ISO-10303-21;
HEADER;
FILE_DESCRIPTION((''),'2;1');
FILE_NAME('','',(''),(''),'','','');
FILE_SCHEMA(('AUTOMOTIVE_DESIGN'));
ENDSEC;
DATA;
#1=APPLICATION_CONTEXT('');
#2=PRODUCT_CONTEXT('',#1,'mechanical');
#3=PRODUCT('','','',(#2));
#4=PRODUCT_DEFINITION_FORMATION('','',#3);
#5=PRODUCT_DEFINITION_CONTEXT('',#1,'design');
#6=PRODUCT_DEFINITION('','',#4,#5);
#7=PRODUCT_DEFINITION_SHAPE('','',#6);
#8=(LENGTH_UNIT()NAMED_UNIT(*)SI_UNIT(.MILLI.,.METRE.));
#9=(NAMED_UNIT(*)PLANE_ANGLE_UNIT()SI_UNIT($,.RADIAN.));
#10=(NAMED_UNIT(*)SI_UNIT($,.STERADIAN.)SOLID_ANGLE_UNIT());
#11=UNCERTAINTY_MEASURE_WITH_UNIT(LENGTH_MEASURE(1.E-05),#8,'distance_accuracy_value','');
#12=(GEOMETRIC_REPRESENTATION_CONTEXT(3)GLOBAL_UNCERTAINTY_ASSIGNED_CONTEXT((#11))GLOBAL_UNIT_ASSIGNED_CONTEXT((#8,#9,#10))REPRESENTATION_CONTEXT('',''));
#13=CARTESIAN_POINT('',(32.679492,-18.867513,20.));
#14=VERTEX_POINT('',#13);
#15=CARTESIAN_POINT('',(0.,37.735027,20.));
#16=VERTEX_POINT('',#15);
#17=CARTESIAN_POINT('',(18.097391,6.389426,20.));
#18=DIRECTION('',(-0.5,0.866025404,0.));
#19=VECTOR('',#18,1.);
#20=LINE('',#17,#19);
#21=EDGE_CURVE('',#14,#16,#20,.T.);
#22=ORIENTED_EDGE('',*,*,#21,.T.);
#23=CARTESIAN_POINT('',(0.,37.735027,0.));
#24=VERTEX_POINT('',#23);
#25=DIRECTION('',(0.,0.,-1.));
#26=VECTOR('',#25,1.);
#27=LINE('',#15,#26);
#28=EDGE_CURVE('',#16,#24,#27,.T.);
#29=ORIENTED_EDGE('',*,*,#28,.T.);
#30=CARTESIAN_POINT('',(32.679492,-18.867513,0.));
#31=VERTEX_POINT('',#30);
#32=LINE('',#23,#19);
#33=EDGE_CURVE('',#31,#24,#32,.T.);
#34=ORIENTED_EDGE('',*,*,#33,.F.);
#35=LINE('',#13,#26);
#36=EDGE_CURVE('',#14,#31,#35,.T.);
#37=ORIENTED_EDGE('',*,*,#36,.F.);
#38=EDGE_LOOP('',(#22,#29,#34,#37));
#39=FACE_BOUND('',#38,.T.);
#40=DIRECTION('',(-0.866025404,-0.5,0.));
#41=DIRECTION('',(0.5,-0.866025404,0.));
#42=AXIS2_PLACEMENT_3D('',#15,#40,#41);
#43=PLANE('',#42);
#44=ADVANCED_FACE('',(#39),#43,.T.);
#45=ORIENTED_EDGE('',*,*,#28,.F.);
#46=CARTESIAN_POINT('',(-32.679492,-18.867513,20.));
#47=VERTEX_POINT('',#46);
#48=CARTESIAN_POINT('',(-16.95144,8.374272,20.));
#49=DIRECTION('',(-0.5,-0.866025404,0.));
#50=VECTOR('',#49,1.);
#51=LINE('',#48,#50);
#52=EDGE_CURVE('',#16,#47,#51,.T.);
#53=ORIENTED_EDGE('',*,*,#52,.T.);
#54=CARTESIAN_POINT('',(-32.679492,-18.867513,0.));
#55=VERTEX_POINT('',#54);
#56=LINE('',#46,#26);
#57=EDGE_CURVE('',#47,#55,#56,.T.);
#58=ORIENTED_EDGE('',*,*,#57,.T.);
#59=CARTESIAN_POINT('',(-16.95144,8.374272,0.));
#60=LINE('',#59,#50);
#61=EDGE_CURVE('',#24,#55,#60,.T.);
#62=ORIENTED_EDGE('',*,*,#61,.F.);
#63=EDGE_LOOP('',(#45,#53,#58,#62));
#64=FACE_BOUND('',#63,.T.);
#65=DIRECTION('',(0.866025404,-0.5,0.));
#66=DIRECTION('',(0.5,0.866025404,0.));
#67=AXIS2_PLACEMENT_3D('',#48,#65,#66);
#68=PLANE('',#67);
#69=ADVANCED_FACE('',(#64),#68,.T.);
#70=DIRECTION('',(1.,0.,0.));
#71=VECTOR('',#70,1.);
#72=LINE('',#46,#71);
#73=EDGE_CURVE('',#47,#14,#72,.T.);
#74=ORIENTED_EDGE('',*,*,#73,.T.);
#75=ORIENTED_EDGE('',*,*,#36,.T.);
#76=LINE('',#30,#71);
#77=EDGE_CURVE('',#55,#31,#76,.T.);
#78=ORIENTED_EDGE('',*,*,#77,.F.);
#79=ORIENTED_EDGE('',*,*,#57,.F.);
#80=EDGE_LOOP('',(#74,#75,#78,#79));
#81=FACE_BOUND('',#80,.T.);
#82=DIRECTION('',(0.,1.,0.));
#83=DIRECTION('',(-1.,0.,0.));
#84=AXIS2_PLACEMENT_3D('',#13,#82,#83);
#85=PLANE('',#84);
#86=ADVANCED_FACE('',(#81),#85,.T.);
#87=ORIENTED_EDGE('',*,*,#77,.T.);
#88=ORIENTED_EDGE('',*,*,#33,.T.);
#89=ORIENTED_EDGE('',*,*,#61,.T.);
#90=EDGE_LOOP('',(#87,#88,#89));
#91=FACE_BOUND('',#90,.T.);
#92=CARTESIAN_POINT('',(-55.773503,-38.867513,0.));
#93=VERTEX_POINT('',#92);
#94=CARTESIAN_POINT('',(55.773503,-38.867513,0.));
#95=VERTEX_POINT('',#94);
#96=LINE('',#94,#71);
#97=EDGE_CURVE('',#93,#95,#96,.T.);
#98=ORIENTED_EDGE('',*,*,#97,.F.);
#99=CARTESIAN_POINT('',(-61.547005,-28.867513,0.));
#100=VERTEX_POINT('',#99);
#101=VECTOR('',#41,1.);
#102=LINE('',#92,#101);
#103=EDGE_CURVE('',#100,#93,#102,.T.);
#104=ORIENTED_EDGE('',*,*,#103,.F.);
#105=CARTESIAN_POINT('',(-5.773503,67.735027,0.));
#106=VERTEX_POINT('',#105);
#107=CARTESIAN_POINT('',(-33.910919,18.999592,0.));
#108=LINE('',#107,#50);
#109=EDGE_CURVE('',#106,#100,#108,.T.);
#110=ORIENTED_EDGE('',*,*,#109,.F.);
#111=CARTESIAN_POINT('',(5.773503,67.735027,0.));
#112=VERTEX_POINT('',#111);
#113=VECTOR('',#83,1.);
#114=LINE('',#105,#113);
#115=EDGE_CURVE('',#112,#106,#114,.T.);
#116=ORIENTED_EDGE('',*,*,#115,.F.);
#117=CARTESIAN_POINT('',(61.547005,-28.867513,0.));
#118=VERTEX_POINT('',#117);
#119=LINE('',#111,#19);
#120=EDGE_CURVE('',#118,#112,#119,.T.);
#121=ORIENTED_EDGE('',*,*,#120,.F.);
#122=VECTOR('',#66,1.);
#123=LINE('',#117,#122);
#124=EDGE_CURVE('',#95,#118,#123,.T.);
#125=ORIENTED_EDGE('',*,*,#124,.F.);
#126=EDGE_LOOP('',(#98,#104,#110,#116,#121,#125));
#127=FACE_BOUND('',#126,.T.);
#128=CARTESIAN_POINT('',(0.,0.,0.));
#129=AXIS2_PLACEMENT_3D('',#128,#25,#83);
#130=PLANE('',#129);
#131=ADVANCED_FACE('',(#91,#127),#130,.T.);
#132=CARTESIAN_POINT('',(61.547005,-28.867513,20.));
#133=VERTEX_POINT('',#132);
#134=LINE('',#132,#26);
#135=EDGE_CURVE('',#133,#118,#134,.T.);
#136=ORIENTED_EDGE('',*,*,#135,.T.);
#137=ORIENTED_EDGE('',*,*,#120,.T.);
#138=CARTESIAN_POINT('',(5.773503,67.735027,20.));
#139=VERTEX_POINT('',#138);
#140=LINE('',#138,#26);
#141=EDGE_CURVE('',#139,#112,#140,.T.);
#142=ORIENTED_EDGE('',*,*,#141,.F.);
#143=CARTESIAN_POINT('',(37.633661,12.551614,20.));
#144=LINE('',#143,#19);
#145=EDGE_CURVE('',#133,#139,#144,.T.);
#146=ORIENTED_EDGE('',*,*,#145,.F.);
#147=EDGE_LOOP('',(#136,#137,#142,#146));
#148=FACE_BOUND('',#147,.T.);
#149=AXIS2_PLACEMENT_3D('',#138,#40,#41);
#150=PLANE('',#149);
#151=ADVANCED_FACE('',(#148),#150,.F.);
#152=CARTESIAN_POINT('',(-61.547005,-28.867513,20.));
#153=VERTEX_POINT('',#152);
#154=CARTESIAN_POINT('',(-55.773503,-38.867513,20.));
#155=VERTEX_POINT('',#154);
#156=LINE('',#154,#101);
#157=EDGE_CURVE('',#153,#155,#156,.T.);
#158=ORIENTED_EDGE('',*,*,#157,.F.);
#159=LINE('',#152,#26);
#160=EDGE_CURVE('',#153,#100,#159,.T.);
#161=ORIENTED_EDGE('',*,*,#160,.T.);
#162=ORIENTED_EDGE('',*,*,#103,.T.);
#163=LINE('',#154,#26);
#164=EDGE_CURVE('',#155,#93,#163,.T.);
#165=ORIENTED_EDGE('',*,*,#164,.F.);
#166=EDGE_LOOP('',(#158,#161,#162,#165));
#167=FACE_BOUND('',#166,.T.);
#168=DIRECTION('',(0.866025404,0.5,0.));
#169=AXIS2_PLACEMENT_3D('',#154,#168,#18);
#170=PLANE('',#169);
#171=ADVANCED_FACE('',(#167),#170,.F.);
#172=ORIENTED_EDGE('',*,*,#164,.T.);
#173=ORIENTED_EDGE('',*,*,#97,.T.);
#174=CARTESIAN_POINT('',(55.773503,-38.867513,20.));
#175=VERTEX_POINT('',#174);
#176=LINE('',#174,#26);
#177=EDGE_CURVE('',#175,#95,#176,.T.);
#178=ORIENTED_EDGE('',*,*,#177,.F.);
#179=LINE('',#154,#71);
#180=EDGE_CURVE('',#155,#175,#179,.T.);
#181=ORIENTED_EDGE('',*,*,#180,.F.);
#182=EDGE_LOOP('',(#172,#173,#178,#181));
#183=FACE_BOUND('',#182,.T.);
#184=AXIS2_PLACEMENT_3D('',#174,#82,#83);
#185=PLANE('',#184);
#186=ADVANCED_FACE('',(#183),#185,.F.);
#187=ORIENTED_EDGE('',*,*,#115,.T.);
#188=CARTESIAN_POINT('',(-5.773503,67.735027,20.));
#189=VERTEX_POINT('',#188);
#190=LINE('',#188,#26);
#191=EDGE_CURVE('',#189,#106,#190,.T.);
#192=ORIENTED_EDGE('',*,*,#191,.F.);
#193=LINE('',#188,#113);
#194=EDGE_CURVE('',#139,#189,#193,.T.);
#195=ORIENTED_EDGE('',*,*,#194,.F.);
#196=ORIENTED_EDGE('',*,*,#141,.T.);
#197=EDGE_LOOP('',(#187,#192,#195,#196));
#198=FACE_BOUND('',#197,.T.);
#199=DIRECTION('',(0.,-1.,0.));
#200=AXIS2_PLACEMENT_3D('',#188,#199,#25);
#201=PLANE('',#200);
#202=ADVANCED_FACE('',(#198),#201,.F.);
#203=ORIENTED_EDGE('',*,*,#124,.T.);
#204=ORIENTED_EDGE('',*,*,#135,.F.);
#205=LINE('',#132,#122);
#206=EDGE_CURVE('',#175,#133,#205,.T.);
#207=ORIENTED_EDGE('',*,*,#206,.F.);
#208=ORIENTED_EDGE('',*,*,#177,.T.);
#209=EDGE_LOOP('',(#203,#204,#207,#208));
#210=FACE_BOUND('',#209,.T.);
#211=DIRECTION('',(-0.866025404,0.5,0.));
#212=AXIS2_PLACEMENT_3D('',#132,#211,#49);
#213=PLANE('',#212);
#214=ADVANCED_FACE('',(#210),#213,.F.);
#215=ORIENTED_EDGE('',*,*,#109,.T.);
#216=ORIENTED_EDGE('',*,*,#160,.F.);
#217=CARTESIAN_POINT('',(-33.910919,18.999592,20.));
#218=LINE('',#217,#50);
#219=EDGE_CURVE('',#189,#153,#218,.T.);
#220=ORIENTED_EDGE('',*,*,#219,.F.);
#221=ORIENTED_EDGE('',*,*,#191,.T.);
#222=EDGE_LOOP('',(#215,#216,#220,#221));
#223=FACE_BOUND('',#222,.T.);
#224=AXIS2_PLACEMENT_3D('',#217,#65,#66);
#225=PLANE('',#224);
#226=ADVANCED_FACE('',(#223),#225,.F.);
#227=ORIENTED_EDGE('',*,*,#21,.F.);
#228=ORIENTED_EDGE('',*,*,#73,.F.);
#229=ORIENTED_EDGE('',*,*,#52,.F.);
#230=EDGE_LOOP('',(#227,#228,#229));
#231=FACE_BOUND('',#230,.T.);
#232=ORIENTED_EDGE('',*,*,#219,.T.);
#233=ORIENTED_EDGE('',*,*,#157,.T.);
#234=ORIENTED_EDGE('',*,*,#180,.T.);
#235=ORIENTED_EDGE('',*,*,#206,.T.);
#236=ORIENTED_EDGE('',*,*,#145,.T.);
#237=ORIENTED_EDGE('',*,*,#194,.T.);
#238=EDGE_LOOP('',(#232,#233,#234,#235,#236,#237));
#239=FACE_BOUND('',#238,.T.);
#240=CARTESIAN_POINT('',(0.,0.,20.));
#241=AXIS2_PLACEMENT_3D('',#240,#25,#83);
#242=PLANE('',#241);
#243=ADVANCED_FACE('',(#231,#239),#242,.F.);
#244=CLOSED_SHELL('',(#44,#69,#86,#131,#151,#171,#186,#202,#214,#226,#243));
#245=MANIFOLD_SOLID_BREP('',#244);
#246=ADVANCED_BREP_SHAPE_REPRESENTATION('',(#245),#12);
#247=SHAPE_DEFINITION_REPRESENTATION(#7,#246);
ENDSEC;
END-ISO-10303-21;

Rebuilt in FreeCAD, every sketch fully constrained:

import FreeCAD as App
import Part
import Sketcher

V = App.Vector
Q = App.Units.Quantity


def add_polygon(sketch, points):
    """Adds a closed chain of lines whose ends are joined by coincident constraints."""
    first, n = sketch.GeometryCount, len(points)
    for a, b in zip(points, points[1:] + points[:1]):
        sketch.addGeometry(Part.LineSegment(App.Vector(*a, 0), App.Vector(*b, 0)), False)
    for i in range(n):
        sketch.addConstraint(Sketcher.Constraint("Coincident", first + i, 2, first + (i + 1) % n, 1))

doc = App.newDocument("Part")
params = doc.addObject("Spreadsheet::Sheet", "Params")
for row, (alias, value) in enumerate([
    ("pad1_length", "20 mm"),
], start=1):
    params.set(f"A{row}", alias)
    params.set(f"B{row}", "=" + value)
    params.setAlias(f"B{row}", alias)

body = doc.addObject("PartDesign::Body", "Body")

sketch1 = doc.addObject("Sketcher::SketchObject", "Sketch")
body.addObject(sketch1)
sketch1.AttachmentSupport = (doc.XY_Plane, [""])
sketch1.MapMode = "FlatFace"
add_polygon(sketch1, [(-33.910919, 18.999592), (-61.547005, -28.867513), (-55.773503, -38.867513), (55.773503, -38.867513), (61.547005, -28.867513), (37.633661, 12.551614), (5.773503, 67.735027), (-5.773503, 67.735027)])
add_polygon(sketch1, [(-32.679492, -18.867513), (-16.95144, 8.374272), (0, 37.735027), (18.097391, 6.389426), (32.679492, -18.867513)])
sketch1.addConstraint(Sketcher.Constraint("Horizontal", 2))
sketch1.addConstraint(Sketcher.Constraint("Horizontal", 6))
sketch1.addConstraint(Sketcher.Constraint("Horizontal", 12))
sketch1.addConstraint(Sketcher.Constraint("Symmetric", 0, 2, 3, 2, -2))
sketch1.addConstraint(Sketcher.Constraint("PointOnObject", 9, 2, -2))
sketch1.addConstraint(Sketcher.Constraint("Parallel", 0, 3))
sketch1.addConstraint(Sketcher.Constraint("Parallel", 1, 4))
sketch1.addConstraint(Sketcher.Constraint("Parallel", 4, 5))
sketch1.addConstraint(Sketcher.Constraint("Parallel", 3, 7))
sketch1.addConstraint(Sketcher.Constraint("Parallel", 7, 8))
sketch1.addConstraint(Sketcher.Constraint("Parallel", 8, 9))
sketch1.addConstraint(Sketcher.Constraint("Parallel", 5, 10))
sketch1.addConstraint(Sketcher.Constraint("Parallel", 10, 11))
sketch1.addConstraint(Sketcher.Constraint("Equal", 1, 3))
sketch1.addConstraint(Sketcher.Constraint("Angle", 0, Q("-120 deg")))
sketch1.addConstraint(Sketcher.Constraint("DistanceY", 1, 2, 0, 2, 10.0))
sketch1.addConstraint(Sketcher.Constraint("DistanceX", 5, 2, 2, 2, 50.0))
sketch1.addConstraint(Sketcher.Constraint("DistanceY", 9, 2, 5, 2, 30.0))
sketch1.addConstraint(Sketcher.Constraint("DistanceY", 2, 2, 11, 2, 20.0))
sketch1.addConstraint(Sketcher.Constraint("Distance", 11, 29.164201))
sketch1.addConstraint(Sketcher.Constraint("DistanceX", 8, 2, 4, 2, 54.5851))
sketch1.addConstraint(Sketcher.Constraint("Distance", 4, 47.826689))
sketch1.addConstraint(Sketcher.Constraint("Distance", 9, 33.902879))
sketch1.addConstraint(Sketcher.Constraint("DistanceX", 7, 2, -1, 1, 33.910919))
sketch1.addConstraint(Sketcher.Constraint("DistanceY", 0, 2, -1, 1, 28.867513))
pad1 = doc.addObject("PartDesign::Pad", "Pad")
body.addObject(pad1)
pad1.Profile = sketch1
pad1.setExpression("Length", "Params.pad1_length")

doc.recompute()
